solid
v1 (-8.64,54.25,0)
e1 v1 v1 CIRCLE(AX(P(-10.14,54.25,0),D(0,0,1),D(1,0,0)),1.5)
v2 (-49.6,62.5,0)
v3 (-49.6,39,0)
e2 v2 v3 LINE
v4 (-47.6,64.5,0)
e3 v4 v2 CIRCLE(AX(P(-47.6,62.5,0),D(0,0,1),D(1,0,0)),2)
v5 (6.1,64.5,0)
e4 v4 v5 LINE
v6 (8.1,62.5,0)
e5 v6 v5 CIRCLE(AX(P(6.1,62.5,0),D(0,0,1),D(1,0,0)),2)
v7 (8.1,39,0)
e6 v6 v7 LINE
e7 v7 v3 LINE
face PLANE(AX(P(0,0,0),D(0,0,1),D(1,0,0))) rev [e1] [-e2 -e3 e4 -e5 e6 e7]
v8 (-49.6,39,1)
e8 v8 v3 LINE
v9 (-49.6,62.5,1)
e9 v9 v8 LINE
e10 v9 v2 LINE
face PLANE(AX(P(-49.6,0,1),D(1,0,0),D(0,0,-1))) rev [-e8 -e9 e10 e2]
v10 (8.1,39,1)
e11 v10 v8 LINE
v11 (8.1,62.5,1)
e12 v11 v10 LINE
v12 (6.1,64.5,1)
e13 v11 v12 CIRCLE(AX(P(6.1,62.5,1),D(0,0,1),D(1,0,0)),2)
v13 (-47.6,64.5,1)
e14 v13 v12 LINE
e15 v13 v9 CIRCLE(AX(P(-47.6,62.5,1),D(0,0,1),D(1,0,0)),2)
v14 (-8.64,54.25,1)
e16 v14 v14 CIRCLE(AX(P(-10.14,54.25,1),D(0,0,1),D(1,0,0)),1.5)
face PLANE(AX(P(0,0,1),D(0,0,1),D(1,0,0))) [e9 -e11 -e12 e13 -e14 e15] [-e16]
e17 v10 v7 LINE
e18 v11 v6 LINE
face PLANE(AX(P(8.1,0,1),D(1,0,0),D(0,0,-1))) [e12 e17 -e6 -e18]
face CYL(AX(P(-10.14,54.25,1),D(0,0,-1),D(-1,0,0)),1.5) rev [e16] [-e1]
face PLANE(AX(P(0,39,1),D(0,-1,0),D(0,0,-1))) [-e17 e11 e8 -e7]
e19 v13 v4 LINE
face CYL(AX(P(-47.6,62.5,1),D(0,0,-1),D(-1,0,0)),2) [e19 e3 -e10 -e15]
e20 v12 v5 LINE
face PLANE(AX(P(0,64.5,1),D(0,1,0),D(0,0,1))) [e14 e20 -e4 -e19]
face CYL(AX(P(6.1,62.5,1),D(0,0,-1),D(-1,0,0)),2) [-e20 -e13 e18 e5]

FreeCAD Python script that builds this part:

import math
import FreeCAD as App
import Part
import Sketcher

doc = App.newDocument("Part")
params = doc.addObject("Spreadsheet::Sheet", "Params")
for row, (alias, value) in enumerate([
    ("sketch1_diameter", "3 mm"),
    ("sketch1_radius", "2 mm"),
    ("sketch1_width", "57.7 mm"),
    ("sketch1_height", "23.5 mm"),
    ("pad1_length", "1 mm"),
], start=1):
    params.set(f"A{row}", alias)
    params.set(f"B{row}", "=" + value)
    params.setAlias(f"B{row}", alias)

body = doc.addObject("PartDesign::Body", "Body")

sketch1 = body.newObject("Sketcher::SketchObject", "Sketch")
sketch1.AttachmentSupport = (doc.getObject("XY_Plane"), [""])
sketch1.MapMode = "FlatFace"
sketch1.addGeometry([
    Part.LineSegment(App.Vector(-49.6, 39, 0), App.Vector(8.1, 39, 0)),
    Part.LineSegment(App.Vector(8.1, 39, 0), App.Vector(8.1, 62.5, 0)),
    Part.ArcOfCircle(Part.Circle(App.Vector(6.1, 62.5, 0), App.Vector(0, 0, 1), 2), math.radians(0), math.radians(90)),
    Part.LineSegment(App.Vector(6.1, 64.5, 0), App.Vector(-47.6, 64.5, 0)),
    Part.ArcOfCircle(Part.Circle(App.Vector(-47.6, 62.5, 0), App.Vector(0, 0, 1), 2), math.radians(90), math.radians(180)),
    Part.LineSegment(App.Vector(-49.6, 62.5, 0), App.Vector(-49.6, 39, 0)),
    Part.Circle(App.Vector(-10.14, 54.25, 0), App.Vector(0, 0, 1), 1.5),
], False)
sketch1.addConstraint([
    Sketcher.Constraint("Coincident", 0, 2, 1, 1),
    Sketcher.Constraint("Tangent", 1, 2, 2, 1),
    Sketcher.Constraint("Tangent", 2, 2, 3, 1),
    Sketcher.Constraint("Tangent", 3, 2, 4, 1),
    Sketcher.Constraint("Tangent", 4, 2, 5, 1),
    Sketcher.Constraint("Coincident", 5, 2, 0, 1),
    Sketcher.Constraint("Horizontal", 0),
    Sketcher.Constraint("Vertical", 1),
    Sketcher.Constraint("Horizontal", 3),
    Sketcher.Constraint("Vertical", 5),
    Sketcher.Constraint("Equal", 2, 4),
    Sketcher.Constraint("Diameter", 6, 3.0),
    Sketcher.Constraint("Radius", 2, 2.0),
    Sketcher.Constraint("DistanceX", 0, 1, 0, 2, 57.7),
    Sketcher.Constraint("DistanceY", 1, 1, 1, 2, 23.5),
    Sketcher.Constraint("DistanceY", -1, 1, 0, 2, 39.0),
    Sketcher.Constraint("DistanceX", -1, 1, 2, 3, 6.1),
    Sketcher.Constraint("DistanceX", 6, 3, -1, 1, 10.14),
    Sketcher.Constraint("DistanceY", -1, 1, 6, 3, 54.25),
])
sketch1.setExpression("Constraints[11]", "Params.sketch1_diameter")
sketch1.setExpression("Constraints[12]", "Params.sketch1_radius")
sketch1.setExpression("Constraints[13]", "Params.sketch1_width")
sketch1.setExpression("Constraints[14]", "Params.sketch1_height")
pad1 = body.newObject("PartDesign::Pad", "Pad")
pad1.Profile = sketch1
pad1.setExpression("Length", "Params.pad1_length")

doc.recompute()
